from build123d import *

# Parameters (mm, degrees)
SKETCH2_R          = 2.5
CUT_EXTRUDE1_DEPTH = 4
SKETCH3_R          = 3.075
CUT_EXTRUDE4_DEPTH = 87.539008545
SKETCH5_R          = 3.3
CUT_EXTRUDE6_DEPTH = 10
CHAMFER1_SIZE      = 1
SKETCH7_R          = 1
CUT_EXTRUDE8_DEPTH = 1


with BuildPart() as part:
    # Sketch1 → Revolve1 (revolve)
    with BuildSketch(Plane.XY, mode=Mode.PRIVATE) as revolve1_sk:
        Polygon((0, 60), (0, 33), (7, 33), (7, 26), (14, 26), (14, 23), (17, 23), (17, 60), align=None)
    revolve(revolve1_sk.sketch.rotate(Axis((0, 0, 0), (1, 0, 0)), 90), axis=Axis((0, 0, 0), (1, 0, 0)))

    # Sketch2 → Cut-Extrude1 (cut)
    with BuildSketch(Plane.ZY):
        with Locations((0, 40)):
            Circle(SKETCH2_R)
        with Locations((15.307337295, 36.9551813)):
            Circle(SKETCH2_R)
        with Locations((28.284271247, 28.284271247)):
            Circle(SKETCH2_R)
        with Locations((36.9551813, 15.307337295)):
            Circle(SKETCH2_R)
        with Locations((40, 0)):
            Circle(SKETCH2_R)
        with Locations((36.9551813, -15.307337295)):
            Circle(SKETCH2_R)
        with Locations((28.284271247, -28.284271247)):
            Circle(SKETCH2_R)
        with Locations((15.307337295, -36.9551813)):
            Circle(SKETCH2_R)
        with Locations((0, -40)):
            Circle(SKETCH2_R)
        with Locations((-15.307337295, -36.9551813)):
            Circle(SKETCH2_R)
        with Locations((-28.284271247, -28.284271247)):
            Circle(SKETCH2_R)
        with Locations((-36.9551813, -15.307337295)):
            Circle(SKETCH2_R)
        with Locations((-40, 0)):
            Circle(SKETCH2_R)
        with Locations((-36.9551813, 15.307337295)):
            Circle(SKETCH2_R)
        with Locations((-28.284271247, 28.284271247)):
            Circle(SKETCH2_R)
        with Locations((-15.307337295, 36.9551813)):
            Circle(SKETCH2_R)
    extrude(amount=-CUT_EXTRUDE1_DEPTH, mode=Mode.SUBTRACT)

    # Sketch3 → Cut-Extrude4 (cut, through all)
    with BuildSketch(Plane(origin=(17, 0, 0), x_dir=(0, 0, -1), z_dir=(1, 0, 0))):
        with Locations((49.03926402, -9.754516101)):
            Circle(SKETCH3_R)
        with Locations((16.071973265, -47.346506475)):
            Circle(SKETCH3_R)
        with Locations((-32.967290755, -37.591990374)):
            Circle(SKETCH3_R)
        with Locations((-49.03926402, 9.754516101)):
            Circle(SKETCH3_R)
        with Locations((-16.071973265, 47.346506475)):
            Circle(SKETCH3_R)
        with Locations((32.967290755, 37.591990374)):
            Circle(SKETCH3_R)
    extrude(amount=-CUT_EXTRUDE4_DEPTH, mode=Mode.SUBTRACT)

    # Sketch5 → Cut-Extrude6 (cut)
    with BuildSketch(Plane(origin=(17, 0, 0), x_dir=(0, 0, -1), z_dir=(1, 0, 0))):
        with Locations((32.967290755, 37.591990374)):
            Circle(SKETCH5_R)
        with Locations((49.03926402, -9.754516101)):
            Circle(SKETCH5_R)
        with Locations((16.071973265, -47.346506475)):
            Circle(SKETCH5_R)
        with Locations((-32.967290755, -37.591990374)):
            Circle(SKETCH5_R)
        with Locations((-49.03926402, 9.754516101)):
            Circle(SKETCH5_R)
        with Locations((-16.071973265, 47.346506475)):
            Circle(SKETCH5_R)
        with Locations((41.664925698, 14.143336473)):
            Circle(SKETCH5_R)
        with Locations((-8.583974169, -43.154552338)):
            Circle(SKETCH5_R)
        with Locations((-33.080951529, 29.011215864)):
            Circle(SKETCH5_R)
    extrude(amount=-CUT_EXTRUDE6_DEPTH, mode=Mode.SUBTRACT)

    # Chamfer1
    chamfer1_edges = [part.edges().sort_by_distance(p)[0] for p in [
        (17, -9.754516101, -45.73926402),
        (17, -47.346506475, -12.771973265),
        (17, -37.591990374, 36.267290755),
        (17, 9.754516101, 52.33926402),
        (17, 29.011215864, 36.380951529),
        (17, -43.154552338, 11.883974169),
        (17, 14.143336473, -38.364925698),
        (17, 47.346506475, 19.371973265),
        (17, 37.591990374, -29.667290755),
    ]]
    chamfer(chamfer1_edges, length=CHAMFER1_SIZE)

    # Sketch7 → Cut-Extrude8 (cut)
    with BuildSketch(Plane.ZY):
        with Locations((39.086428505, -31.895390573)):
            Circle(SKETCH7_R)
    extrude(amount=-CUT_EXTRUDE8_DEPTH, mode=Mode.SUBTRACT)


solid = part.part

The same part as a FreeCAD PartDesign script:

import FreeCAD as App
import Part
import Sketcher
from FreeCAD import Vector
Q = App.Units.Quantity


def edges_at(feature, points):
    """Names of the edges that pass closest to the given points."""
    edges = feature.Shape.Edges
    near = lambda p: min(range(len(edges)), key=lambda i: edges[i].distToShape(Part.Vertex(*p))[0])
    return sorted({f"Edge{near(p) + 1}" for p in points})

doc = App.newDocument("Part")
body = doc.addObject("PartDesign::Body", "Body")

sketch1 = doc.addObject("Sketcher::SketchObject", "Sketch")
body.addObject(sketch1)
sketch1.AttachmentSupport = (doc.XY_Plane, [""])
sketch1.MapMode = "FlatFace"
sketch1.addGeometry(Part.LineSegment(Vector(0, 60, 0), Vector(0, 33, 0)), False)
sketch1.addGeometry(Part.LineSegment(Vector(0, 33, 0), Vector(7, 33, 0)), False)
sketch1.addGeometry(Part.LineSegment(Vector(7, 33, 0), Vector(7, 26, 0)), False)
sketch1.addGeometry(Part.LineSegment(Vector(7, 26, 0), Vector(14, 26, 0)), False)
sketch1.addGeometry(Part.LineSegment(Vector(14, 26, 0), Vector(14, 23, 0)), False)
sketch1.addGeometry(Part.LineSegment(Vector(14, 23, 0), Vector(17, 23, 0)), False)
sketch1.addGeometry(Part.LineSegment(Vector(17, 23, 0), Vector(17, 60, 0)), False)
sketch1.addGeometry(Part.LineSegment(Vector(17, 60, 0), Vector(0, 60, 0)), False)
sketch1.addConstraint(Sketcher.Constraint("Coincident", 0, 2, 1, 1))
sketch1.addConstraint(Sketcher.Constraint("Coincident", 1, 2, 2, 1))
sketch1.addConstraint(Sketcher.Constraint("Coincident", 2, 2, 3, 1))
sketch1.addConstraint(Sketcher.Constraint("Coincident", 3, 2, 4, 1))
sketch1.addConstraint(Sketcher.Constraint("Coincident", 4, 2, 5, 1))
sketch1.addConstraint(Sketcher.Constraint("Coincident", 5, 2, 6, 1))
sketch1.addConstraint(Sketcher.Constraint("Coincident", 6, 2, 7, 1))
sketch1.addConstraint(Sketcher.Constraint("Coincident", 7, 2, 0, 1))
sketch1.addConstraint(Sketcher.Constraint("Vertical", 0))
sketch1.addConstraint(Sketcher.Constraint("Horizontal", 1))
sketch1.addConstraint(Sketcher.Constraint("Vertical", 2))
sketch1.addConstraint(Sketcher.Constraint("Horizontal", 3))
sketch1.addConstraint(Sketcher.Constraint("Vertical", 4))
sketch1.addConstraint(Sketcher.Constraint("Horizontal", 5))
sketch1.addConstraint(Sketcher.Constraint("Vertical", 6))
sketch1.addConstraint(Sketcher.Constraint("Horizontal", 7))
sketch1.addConstraint(Sketcher.Constraint("PointOnObject", 0, 2, -2))
sketch1.addConstraint(Sketcher.Constraint("Equal", 1, 3))
sketch1.addConstraint(Sketcher.Constraint("Equal", 3, 2))
sketch1.addConstraint(Sketcher.Constraint("Equal", 5, 4))
sketch1.addConstraint(Sketcher.Constraint("DistanceX", 1, 1, 1, 2, Q("7 mm")))
sketch1.addConstraint(Sketcher.Constraint("DistanceX", 5, 1, 5, 2, Q("3 mm")))
sketch1.addConstraint(Sketcher.Constraint("DistanceY", 0, 2, 0, 1, Q("27 mm")))
sketch1.addConstraint(Sketcher.Constraint("DistanceY", -1, 1, 0, 2, Q("33 mm")))
revolution = doc.addObject("PartDesign::Revolution", "Revolution")
body.addObject(revolution)
revolution.Profile = sketch1
revolution.ReferenceAxis = (sketch1, ["H_Axis"])
revolution.Angle = 360

sketch2 = doc.addObject("Sketcher::SketchObject", "Sketch001")
body.addObject(sketch2)
sketch2.AttachmentSupport = (doc.YZ_Plane, [""])
sketch2.MapMode = "FlatFace"
sketch2.addGeometry(Part.Circle(Vector(40, 0, 0), Vector(0, 0, 1), 2.5), False)
sketch2.addGeometry(Part.Circle(Vector(36.955181, 15.307337, 0), Vector(0, 0, 1), 2.5), False)
sketch2.addGeometry(Part.Circle(Vector(28.284271, 28.284271, 0), Vector(0, 0, 1), 2.5), False)
sketch2.addGeometry(Part.Circle(Vector(15.307337, 36.955181, 0), Vector(0, 0, 1), 2.5), False)
sketch2.addGeometry(Part.Circle(Vector(0, 40, 0), Vector(0, 0, 1), 2.5), False)
sketch2.addGeometry(Part.Circle(Vector(-15.307337, 36.955181, 0), Vector(0, 0, 1), 2.5), False)
sketch2.addGeometry(Part.Circle(Vector(-28.284271, 28.284271, 0), Vector(0, 0, 1), 2.5), False)
sketch2.addGeometry(Part.Circle(Vector(-36.955181, 15.307337, 0), Vector(0, 0, 1), 2.5), False)
sketch2.addGeometry(Part.Circle(Vector(-40, 0, 0), Vector(0, 0, 1), 2.5), False)
sketch2.addGeometry(Part.Circle(Vector(-36.955181, -15.307337, 0), Vector(0, 0, 1), 2.5), False)
sketch2.addGeometry(Part.Circle(Vector(-28.284271, -28.284271, 0), Vector(0, 0, 1), 2.5), False)
sketch2.addGeometry(Part.Circle(Vector(-15.307337, -36.955181, 0), Vector(0, 0, 1), 2.5), False)
sketch2.addGeometry(Part.Circle(Vector(0, -40, 0), Vector(0, 0, 1), 2.5), False)
sketch2.addGeometry(Part.Circle(Vector(15.307337, -36.955181, 0), Vector(0, 0, 1), 2.5), False)
sketch2.addGeometry(Part.Circle(Vector(28.284271, -28.284271, 0), Vector(0, 0, 1), 2.5), False)
sketch2.addGeometry(Part.Circle(Vector(36.955181, -15.307337, 0), Vector(0, 0, 1), 2.5), False)
sketch2.addConstraint(Sketcher.Constraint("Equal", 0, 1))
sketch2.addConstraint(Sketcher.Constraint("Equal", 1, 2))
sketch2.addConstraint(Sketcher.Constraint("Equal", 2, 3))
sketch2.addConstraint(Sketcher.Constraint("Equal", 3, 4))
sketch2.addConstraint(Sketcher.Constraint("Equal", 4, 5))
sketch2.addConstraint(Sketcher.Constraint("Equal", 5, 6))
sketch2.addConstraint(Sketcher.Constraint("Equal", 6, 7))
sketch2.addConstraint(Sketcher.Constraint("Equal", 7, 8))
sketch2.addConstraint(Sketcher.Constraint("Equal", 8, 9))
sketch2.addConstraint(Sketcher.Constraint("Equal", 9, 10))
sketch2.addConstraint(Sketcher.Constraint("Equal", 10, 11))
sketch2.addConstraint(Sketcher.Constraint("Equal", 11, 12))
sketch2.addConstraint(Sketcher.Constraint("Equal", 12, 13))
sketch2.addConstraint(Sketcher.Constraint("Equal", 13, 14))
sketch2.addConstraint(Sketcher.Constraint("Equal", 14, 15))
sketch2.addConstraint(Sketcher.Constraint("Symmetric", 0, 3, 8, 3, -1, 1))
sketch2.addConstraint(Sketcher.Constraint("Symmetric", 1, 3, 9, 3, -1, 1))
sketch2.addConstraint(Sketcher.Constraint("Symmetric", 2, 3, 10, 3, -1, 1))
sketch2.addConstraint(Sketcher.Constraint("Symmetric", 3, 3, 11, 3, -1, 1))
sketch2.addConstraint(Sketcher.Constraint("Symmetric", 4, 3, 12, 3, -1, 1))
sketch2.addConstraint(Sketcher.Constraint("Symmetric", 5, 3, 13, 3, -1, 1))
sketch2.addConstraint(Sketcher.Constraint("Symmetric", 6, 3, 14, 3, -1, 1))
sketch2.addConstraint(Sketcher.Constraint("Symmetric", 7, 3, 15, 3, -1, 1))
sketch2.addConstraint(Sketcher.Constraint("Symmetric", 3, 3, 5, 3, -2))
sketch2.addConstraint(Sketcher.Constraint("Symmetric", 2, 3, 6, 3, -2))
sketch2.addConstraint(Sketcher.Constraint("Symmetric", 1, 3, 7, 3, -2))
sketch2.addConstraint(Sketcher.Constraint("PointOnObject", 0, 3, -1))
sketch2.addConstraint(Sketcher.Constraint("PointOnObject", 4, 3, -2))
sketch2.addConstraint(Sketcher.Constraint("Diameter", 0, Q("5 mm")))
sketch2.addConstraint(Sketcher.Constraint("DistanceX", -1, 1, 0, 3, Q("40 mm")))
sketch2.addConstraint(Sketcher.Constraint("DistanceY", -1, 1, 4, 3, Q("40 mm")))
sketch2.addConstraint(Sketcher.Constraint("DistanceX", -1, 1, 1, 3, Q("36.955181 mm")))
sketch2.addConstraint(Sketcher.Constraint("DistanceX", -1, 1, 2, 3, Q("28.284271 mm")))
sketch2.addConstraint(Sketcher.Constraint("DistanceY", -1, 1, 2, 3, Q("28.284271 mm")))
sketch2.addConstraint(Sketcher.Constraint("DistanceY", -1, 1, 3, 3, Q("36.955181 mm")))
sketch2.addConstraint(Sketcher.Constraint("DistanceX", 5, 3, 2, 3, Q("43.591609 mm")))
sketch2.addConstraint(Sketcher.Constraint("DistanceY", 9, 3, 6, 3, Q("43.591609 mm")))
pocket1 = doc.addObject("PartDesign::Pocket", "Pocket")
body.addObject(pocket1)
pocket1.Profile = sketch2
pocket1.Length = 4
pocket1.Reversed = True

sketch3 = doc.addObject("Sketcher::SketchObject", "Sketch002")
body.addObject(sketch3)
sketch3.AttachmentSupport = (doc.YZ_Plane, [""])
sketch3.MapMode = "FlatFace"
sketch3.AttachmentOffset = App.Placement(Vector(0, 0, 17), App.Rotation())
sketch3.addGeometry(Part.Circle(Vector(-9.754516, -49.039264, 0), Vector(0, 0, 1), 3.075), False)
sketch3.addGeometry(Part.Circle(Vector(-47.346506, -16.071973, 0), Vector(0, 0, 1), 3.075), False)
sketch3.addGeometry(Part.Circle(Vector(-37.59199, 32.967291, 0), Vector(0, 0, 1), 3.075), False)
sketch3.addGeometry(Part.Circle(Vector(9.754516, 49.039264, 0), Vector(0, 0, 1), 3.075), False)
sketch3.addGeometry(Part.Circle(Vector(47.346506, 16.071973, 0), Vector(0, 0, 1), 3.075), False)
sketch3.addGeometry(Part.Circle(Vector(37.59199, -32.967291, 0), Vector(0, 0, 1), 3.075), False)
sketch3.addConstraint(Sketcher.Constraint("Equal", 0, 1))
sketch3.addConstraint(Sketcher.Constraint("Equal", 1, 2))
sketch3.addConstraint(Sketcher.Constraint("Equal", 2, 3))
sketch3.addConstraint(Sketcher.Constraint("Equal", 3, 4))
sketch3.addConstraint(Sketcher.Constraint("Equal", 4, 5))
sketch3.addConstraint(Sketcher.Constraint("Symmetric", 0, 3, 3, 3, -1, 1))
sketch3.addConstraint(Sketcher.Constraint("Symmetric", 1, 3, 4, 3, -1, 1))
sketch3.addConstraint(Sketcher.Constraint("Symmetric", 2, 3, 5, 3, -1, 1))
sketch3.addConstraint(Sketcher.Constraint("Diameter", 0, Q("6.15 mm")))
sketch3.addConstraint(Sketcher.Constraint("DistanceX", 2, 3, -1, 1, Q("37.59199 mm")))
sketch3.addConstraint(Sketcher.Constraint("DistanceY", -1, 1, 2, 3, Q("32.967291 mm")))
sketch3.addConstraint(Sketcher.Constraint("DistanceX", 1, 3, 0, 3, Q("37.59199 mm")))
sketch3.addConstraint(Sketcher.Constraint("DistanceY", 0, 3, 1, 3, Q("32.967291 mm")))
sketch3.addConstraint(Sketcher.Constraint("DistanceY", 0, 3, 3, 3, Q("98.078528 mm")))
sketch3.addConstraint(Sketcher.Constraint("DistanceX", 0, 3, -1, 1, Q("9.754516 mm")))
pocket2 = doc.addObject("PartDesign::Pocket", "Pocket001")
body.addObject(pocket2)
pocket2.Profile = sketch3
pocket2.Type = "ThroughAll"

sketch4 = doc.addObject("Sketcher::SketchObject", "Sketch003")
body.addObject(sketch4)
sketch4.AttachmentSupport = (doc.YZ_Plane, [""])
sketch4.MapMode = "FlatFace"
sketch4.AttachmentOffset = App.Placement(Vector(0, 0, 17), App.Rotation())
sketch4.addGeometry(Part.Circle(Vector(37.59199, -32.967291, 0), Vector(0, 0, 1), 3.3), False)
sketch4.addGeometry(Part.Circle(Vector(-9.754516, -49.039264, 0), Vector(0, 0, 1), 3.3), False)
sketch4.addGeometry(Part.Circle(Vector(-47.346506, -16.071973, 0), Vector(0, 0, 1), 3.3), False)
sketch4.addGeometry(Part.Circle(Vector(-37.59199, 32.967291, 0), Vector(0, 0, 1), 3.3), False)
sketch4.addGeometry(Part.Circle(Vector(9.754516, 49.039264, 0), Vector(0, 0, 1), 3.3), False)
sketch4.addGeometry(Part.Circle(Vector(47.346506, 16.071973, 0), Vector(0, 0, 1), 3.3), False)
sketch4.addGeometry(Part.Circle(Vector(14.143336, -41.664926, 0), Vector(0, 0, 1), 3.3), False)
sketch4.addGeometry(Part.Circle(Vector(-43.154552, 8.583974, 0), Vector(0, 0, 1), 3.3), False)
sketch4.addGeometry(Part.Circle(Vector(29.011216, 33.080952, 0), Vector(0, 0, 1), 3.3), False)
sketch4.addConstraint(Sketcher.Constraint("Equal", 0, 1))
sketch4.addConstraint(Sketcher.Constraint("Equal", 1, 2))
sketch4.addConstraint(Sketcher.Constraint("Equal", 2, 3))
sketch4.addConstraint(Sketcher.Constraint("Equal", 3, 4))
sketch4.addConstraint(Sketcher.Constraint("Equal", 4, 5))
sketch4.addConstraint(Sketcher.Constraint("Equal", 5, 6))
sketch4.addConstraint(Sketcher.Constraint("Equal", 6, 7))
sketch4.addConstraint(Sketcher.Constraint("Equal", 7, 8))
sketch4.addConstraint(Sketcher.Constraint("Symmetric", 0, 3, 3, 3, -1, 1))
sketch4.addConstraint(Sketcher.Constraint("Symmetric", 1, 3, 4, 3, -1, 1))
sketch4.addConstraint(Sketcher.Constraint("Symmetric", 2, 3, 5, 3, -1, 1))
sketch4.addConstraint(Sketcher.Constraint("Diameter", 0, Q("6.6 mm")))
sketch4.addConstraint(Sketcher.Constraint("DistanceY", 6, 3, 5, 3, Q("57.736899 mm")))
sketch4.addConstraint(Sketcher.Constraint("DistanceY", 6, 3, 7, 3, Q("50.2489 mm")))
sketch4.addConstraint(Sketcher.Constraint("DistanceX", 4, 3, 8, 3, Q("19.2567 mm")))
sketch4.addConstraint(Sketcher.Constraint("DistanceX", -1, 1, 0, 3, Q("37.59199 mm")))
sketch4.addConstraint(Sketcher.Constraint("DistanceY", 0, 3, -1, 1, Q("32.967291 mm")))
sketch4.addConstraint(Sketcher.Constraint("DistanceY", -1, 1, 8, 3, Q("33.080952 mm")))
sketch4.addConstraint(Sketcher.Constraint("DistanceX", 2, 3, 1, 3, Q("37.59199 mm")))
sketch4.addConstraint(Sketcher.Constraint("DistanceY", 1, 3, 2, 3, Q("32.967291 mm")))
sketch4.addConstraint(Sketcher.Constraint("DistanceY", 1, 3, 4, 3, Q("98.078528 mm")))
sketch4.addConstraint(Sketcher.Constraint("DistanceX", 6, 3, 5, 3, Q("33.20317 mm")))
sketch4.addConstraint(Sketcher.Constraint("DistanceX", 7, 3, 3, 3, Q("5.562562 mm")))
sketch4.addConstraint(Sketcher.Constraint("DistanceX", 7, 3, 4, 3, Q("52.909068 mm")))
pocket3 = doc.addObject("PartDesign::Pocket", "Pocket002")
body.addObject(pocket3)
pocket3.Profile = sketch4
pocket3.Length = 10
doc.recompute()

chamfer = doc.addObject("PartDesign::Chamfer", "Chamfer")
body.addObject(chamfer)
chamfer.Base = (pocket3, edges_at(pocket3, [
    (17, -9.755, -45.739),
    (17, -47.347, -12.772),
    (17, -37.592, 36.267),
    (17, 9.755, 52.339),
    (17, 29.011, 36.381),
    (17, -43.155, 11.884),
    (17, 14.143, -38.365),
    (17, 47.347, 19.372),
    (17, 37.592, -29.667),
]))
chamfer.Size = 1

sketch5 = doc.addObject("Sketcher::SketchObject", "Sketch004")
body.addObject(sketch5)
sketch5.AttachmentSupport = (doc.YZ_Plane, [""])
sketch5.MapMode = "FlatFace"
sketch5.addGeometry(Part.Circle(Vector(-31.895391, 39.086429, 0), Vector(0, 0, 1), 1), False)
sketch5.addConstraint(Sketcher.Constraint("Diameter", 0, Q("2 mm")))
sketch5.addConstraint(Sketcher.Constraint("DistanceX", 0, 3, -1, 1, Q("31.895391 mm")))
sketch5.addConstraint(Sketcher.Constraint("DistanceY", -1, 1, 0, 3, Q("39.086429 mm")))
pocket4 = doc.addObject("PartDesign::Pocket", "Pocket003")
body.addObject(pocket4)
pocket4.Profile = sketch5
pocket4.Length = 1
pocket4.Reversed = True

doc.recompute()
